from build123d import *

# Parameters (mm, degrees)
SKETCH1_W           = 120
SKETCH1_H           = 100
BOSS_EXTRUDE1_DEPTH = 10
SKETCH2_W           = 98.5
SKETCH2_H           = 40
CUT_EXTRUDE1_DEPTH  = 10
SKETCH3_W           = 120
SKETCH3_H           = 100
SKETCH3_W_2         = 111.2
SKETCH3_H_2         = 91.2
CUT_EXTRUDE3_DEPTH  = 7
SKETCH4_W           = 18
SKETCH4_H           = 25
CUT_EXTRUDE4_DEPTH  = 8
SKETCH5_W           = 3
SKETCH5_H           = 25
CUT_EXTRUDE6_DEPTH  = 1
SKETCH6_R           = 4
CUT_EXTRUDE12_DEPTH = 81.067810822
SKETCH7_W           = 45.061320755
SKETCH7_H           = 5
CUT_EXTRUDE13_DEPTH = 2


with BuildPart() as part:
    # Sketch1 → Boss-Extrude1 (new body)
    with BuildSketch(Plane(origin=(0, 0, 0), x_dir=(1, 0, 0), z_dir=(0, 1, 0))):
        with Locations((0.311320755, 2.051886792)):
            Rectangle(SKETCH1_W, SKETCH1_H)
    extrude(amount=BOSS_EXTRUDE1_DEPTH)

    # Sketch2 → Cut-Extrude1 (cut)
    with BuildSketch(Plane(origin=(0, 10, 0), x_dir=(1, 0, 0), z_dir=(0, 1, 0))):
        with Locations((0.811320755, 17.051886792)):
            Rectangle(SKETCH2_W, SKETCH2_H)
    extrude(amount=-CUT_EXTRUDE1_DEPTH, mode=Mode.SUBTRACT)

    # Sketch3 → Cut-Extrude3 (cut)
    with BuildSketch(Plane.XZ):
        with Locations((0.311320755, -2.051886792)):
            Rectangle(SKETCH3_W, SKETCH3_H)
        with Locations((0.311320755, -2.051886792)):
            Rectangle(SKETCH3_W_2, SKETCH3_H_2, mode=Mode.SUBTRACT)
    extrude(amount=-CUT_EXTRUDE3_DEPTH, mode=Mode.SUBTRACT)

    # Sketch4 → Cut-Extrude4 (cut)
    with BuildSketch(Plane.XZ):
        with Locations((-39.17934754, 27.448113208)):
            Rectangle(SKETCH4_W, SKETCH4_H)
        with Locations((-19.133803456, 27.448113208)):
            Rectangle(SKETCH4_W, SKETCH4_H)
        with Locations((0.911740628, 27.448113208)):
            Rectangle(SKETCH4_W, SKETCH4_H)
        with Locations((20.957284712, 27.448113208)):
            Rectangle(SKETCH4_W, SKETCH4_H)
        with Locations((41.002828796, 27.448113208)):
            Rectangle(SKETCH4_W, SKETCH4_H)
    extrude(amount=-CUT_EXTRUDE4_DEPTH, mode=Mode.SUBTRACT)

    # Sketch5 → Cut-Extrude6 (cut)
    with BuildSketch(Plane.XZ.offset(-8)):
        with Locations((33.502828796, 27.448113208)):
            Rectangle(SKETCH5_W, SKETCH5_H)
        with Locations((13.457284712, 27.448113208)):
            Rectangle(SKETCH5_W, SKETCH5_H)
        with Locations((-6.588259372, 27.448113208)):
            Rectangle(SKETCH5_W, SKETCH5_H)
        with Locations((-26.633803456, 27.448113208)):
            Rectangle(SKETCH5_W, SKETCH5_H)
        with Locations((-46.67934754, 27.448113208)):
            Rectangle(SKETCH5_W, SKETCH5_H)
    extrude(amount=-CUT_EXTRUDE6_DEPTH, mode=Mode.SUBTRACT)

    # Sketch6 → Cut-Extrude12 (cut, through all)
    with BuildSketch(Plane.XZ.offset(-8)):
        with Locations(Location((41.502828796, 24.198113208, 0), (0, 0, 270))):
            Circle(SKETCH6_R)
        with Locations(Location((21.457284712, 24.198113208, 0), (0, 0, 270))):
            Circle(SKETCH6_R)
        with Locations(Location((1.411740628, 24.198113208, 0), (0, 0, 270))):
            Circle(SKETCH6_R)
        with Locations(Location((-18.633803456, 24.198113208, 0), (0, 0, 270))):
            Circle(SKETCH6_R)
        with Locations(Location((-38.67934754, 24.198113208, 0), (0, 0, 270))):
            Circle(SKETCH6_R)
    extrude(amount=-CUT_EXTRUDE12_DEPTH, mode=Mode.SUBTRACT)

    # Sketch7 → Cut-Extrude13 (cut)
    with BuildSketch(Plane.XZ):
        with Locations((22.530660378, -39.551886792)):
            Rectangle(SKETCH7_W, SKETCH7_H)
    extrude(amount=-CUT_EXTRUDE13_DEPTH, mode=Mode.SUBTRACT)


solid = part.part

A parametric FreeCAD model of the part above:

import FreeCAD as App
import Part
import Sketcher

V = App.Vector
Q = App.Units.Quantity

doc = App.newDocument("Part")
body = doc.addObject("PartDesign::Body", "Body")

sketch1 = body.newObject("Sketcher::SketchObject", "Sketch")
sketch1.AttachmentSupport = (doc.getObject("XZ_Plane"), [""])
sketch1.MapMode = "FlatFace"
sketch1.addGeometry([
    Part.LineSegment(V(-60, -52, 0), V(-60, 48, 0)),
    Part.LineSegment(V(-60, 48, 0), V(60, 48, 0)),
    Part.LineSegment(V(60, 48, 0), V(60, -52, 0)),
    Part.LineSegment(V(60, -52, 0), V(-60, -52, 0)),
], False)
sketch1.addConstraint([
    Sketcher.Constraint("Coincident", 0, 2, 1, 1),
    Sketcher.Constraint("Coincident", 1, 2, 2, 1),
    Sketcher.Constraint("Coincident", 2, 2, 3, 1),
    Sketcher.Constraint("Coincident", 3, 2, 0, 1),
    Sketcher.Constraint("Vertical", 0),
    Sketcher.Constraint("Horizontal", 1),
    Sketcher.Constraint("Vertical", 2),
    Sketcher.Constraint("Horizontal", 3),
    Sketcher.Constraint("DistanceX", 1, 1, 1, 2, Q("120 mm")),
    Sketcher.Constraint("DistanceY", 0, 1, 0, 2, Q("100 mm")),
    Sketcher.Constraint("DistanceX", 0, 2, -1, 1, Q("59.688679 mm")),
    Sketcher.Constraint("DistanceY", -1, 1, 0, 2, Q("47.948113 mm")),
])
pad1 = body.newObject("PartDesign::Pad", "Pad")
pad1.Profile = sketch1
pad1.Length = 10
pad1.Reversed = True

sketch2 = body.newObject("Sketcher::SketchObject", "Sketch001")
sketch2.AttachmentSupport = (doc.getObject("XZ_Plane"), [""])
sketch2.MapMode = "FlatFace"
sketch2.AttachmentOffset = App.Placement(V(0, 0, -10), App.Rotation())
sketch2.addGeometry([
    Part.LineSegment(V(-48, -37, 0), V(-48, 3, 0)),
    Part.LineSegment(V(-48, 3, 0), V(50, 3, 0)),
    Part.LineSegment(V(50, 3, 0), V(50, -37, 0)),
    Part.LineSegment(V(50, -37, 0), V(-48, -37, 0)),
], False)
sketch2.addConstraint([
    Sketcher.Constraint("Coincident", 0, 2, 1, 1),
    Sketcher.Constraint("Coincident", 1, 2, 2, 1),
    Sketcher.Constraint("Coincident", 2, 2, 3, 1),
    Sketcher.Constraint("Coincident", 3, 2, 0, 1),
    Sketcher.Constraint("Vertical", 0),
    Sketcher.Constraint("Horizontal", 1),
    Sketcher.Constraint("Vertical", 2),
    Sketcher.Constraint("Horizontal", 3),
    Sketcher.Constraint("DistanceY", 0, 1, 0, 2, Q("40 mm")),
    Sketcher.Constraint("DistanceX", 1, 1, 1, 2, Q("98.5 mm")),
    Sketcher.Constraint("DistanceX", 0, 2, -1, 1, Q("48.438679 mm")),
    Sketcher.Constraint("DistanceY", -1, 1, 0, 2, Q("2.948113 mm")),
])
pocket1 = body.newObject("PartDesign::Pocket", "Pocket")
pocket1.Profile = sketch2
pocket1.Length = 10
pocket1.Reversed = True

sketch3 = body.newObject("Sketcher::SketchObject", "Sketch002")
sketch3.AttachmentSupport = (doc.getObject("XZ_Plane"), [""])
sketch3.MapMode = "FlatFace"
sketch3.addGeometry([
    Part.LineSegment(V(-60, 48, 0), V(-60, -52, 0)),
    Part.LineSegment(V(-60, -52, 0), V(60, -52, 0)),
    Part.LineSegment(V(60, -52, 0), V(60, 48, 0)),
    Part.LineSegment(V(60, 48, 0), V(-60, 48, 0)),
    Part.LineSegment(V(56, -48, 0), V(-55, -48, 0)),
    Part.LineSegment(V(-55, -48, 0), V(-55, 44, 0)),
    Part.LineSegment(V(-55, 44, 0), V(56, 44, 0)),
    Part.LineSegment(V(56, 44, 0), V(56, -48, 0)),
], False)
sketch3.addConstraint([
    Sketcher.Constraint("Coincident", 0, 2, 1, 1),
    Sketcher.Constraint("Coincident", 1, 2, 2, 1),
    Sketcher.Constraint("Coincident", 2, 2, 3, 1),
    Sketcher.Constraint("Coincident", 3, 2, 0, 1),
    Sketcher.Constraint("Coincident", 4, 2, 5, 1),
    Sketcher.Constraint("Coincident", 5, 2, 6, 1),
    Sketcher.Constraint("Coincident", 6, 2, 7, 1),
    Sketcher.Constraint("Coincident", 7, 2, 4, 1),
    Sketcher.Constraint("Vertical", 0),
    Sketcher.Constraint("Horizontal", 1),
    Sketcher.Constraint("Vertical", 2),
    Sketcher.Constraint("Horizontal", 3),
    Sketcher.Constraint("Horizontal", 4),
    Sketcher.Constraint("Vertical", 5),
    Sketcher.Constraint("Horizontal", 6),
    Sketcher.Constraint("Vertical", 7),
    Sketcher.Constraint("DistanceX", 1, 1, 1, 2, Q("120 mm")),
    Sketcher.Constraint("DistanceY", 0, 2, 0, 1, Q("100 mm")),
    Sketcher.Constraint("DistanceX", 4, 2, 4, 1, Q("111.2 mm")),
    Sketcher.Constraint("DistanceY", 5, 1, 5, 2, Q("91.2 mm")),
    Sketcher.Constraint("DistanceX", 0, 2, 4, 2, Q("4.4 mm")),
    Sketcher.Constraint("DistanceY", 0, 2, 4, 2, Q("4.4 mm")),
    Sketcher.Constraint("DistanceX", 0, 2, -1, 1, Q("59.688679 mm")),
    Sketcher.Constraint("DistanceY", 0, 2, -1, 1, Q("52.051887 mm")),
])
pocket2 = body.newObject("PartDesign::Pocket", "Pocket001")
pocket2.Profile = sketch3
pocket2.Length = 7

sketch4 = body.newObject("Sketcher::SketchObject", "Sketch003")
sketch4.AttachmentSupport = (doc.getObject("XZ_Plane"), [""])
sketch4.MapMode = "FlatFace"
sketch4.addGeometry([
    Part.LineSegment(V(-48, 40, 0), V(-48, 15, 0)),
    Part.LineSegment(V(-48, 15, 0), V(-30, 15, 0)),
    Part.LineSegment(V(-30, 15, 0), V(-30, 40, 0)),
    Part.LineSegment(V(-30, 40, 0), V(-48, 40, 0)),
    Part.LineSegment(V(-28, 40, 0), V(-28, 15, 0)),
    Part.LineSegment(V(-28, 15, 0), V(-10, 15, 0)),
    Part.LineSegment(V(-10, 15, 0), V(-10, 40, 0)),
    Part.LineSegment(V(-10, 40, 0), V(-28, 40, 0)),
    Part.LineSegment(V(-8, 40, 0), V(-8, 15, 0)),
    Part.LineSegment(V(-8, 15, 0), V(10, 15, 0)),
    Part.LineSegment(V(10, 15, 0), V(10, 40, 0)),
    Part.LineSegment(V(10, 40, 0), V(-8, 40, 0)),
    Part.LineSegment(V(12, 40, 0), V(12, 15, 0)),
    Part.LineSegment(V(12, 15, 0), V(30, 15, 0)),
    Part.LineSegment(V(30, 15, 0), V(30, 40, 0)),
    Part.LineSegment(V(30, 40, 0), V(12, 40, 0)),
    Part.LineSegment(V(32, 40, 0), V(32, 15, 0)),
    Part.LineSegment(V(32, 15, 0), V(50, 15, 0)),
    Part.LineSegment(V(50, 15, 0), V(50, 40, 0)),
    Part.LineSegment(V(50, 40, 0), V(32, 40, 0)),
], False)
sketch4.addConstraint([
    Sketcher.Constraint("Coincident", 0, 2, 1, 1),
    Sketcher.Constraint("Coincident", 1, 2, 2, 1),
    Sketcher.Constraint("Coincident", 2, 2, 3, 1),
    Sketcher.Constraint("Coincident", 3, 2, 0, 1),
    Sketcher.Constraint("Coincident", 4, 2, 5, 1),
    Sketcher.Constraint("Coincident", 5, 2, 6, 1),
    Sketcher.Constraint("Coincident", 6, 2, 7, 1),
    Sketcher.Constraint("Coincident", 7, 2, 4, 1),
    Sketcher.Constraint("Coincident", 8, 2, 9, 1),
    Sketcher.Constraint("Coincident", 9, 2, 10, 1),
    Sketcher.Constraint("Coincident", 10, 2, 11, 1),
    Sketcher.Constraint("Coincident", 11, 2, 8, 1),
    Sketcher.Constraint("Coincident", 12, 2, 13, 1),
    Sketcher.Constraint("Coincident", 13, 2, 14, 1),
    Sketcher.Constraint("Coincident", 14, 2, 15, 1),
    Sketcher.Constraint("Coincident", 15, 2, 12, 1),
    Sketcher.Constraint("Coincident", 16, 2, 17, 1),
    Sketcher.Constraint("Coincident", 17, 2, 18, 1),
    Sketcher.Constraint("Coincident", 18, 2, 19, 1),
    Sketcher.Constraint("Coincident", 19, 2, 16, 1),
    Sketcher.Constraint("Vertical", 0),
    Sketcher.Constraint("Horizontal", 1),
    Sketcher.Constraint("Vertical", 2),
    Sketcher.Constraint("Horizontal", 3),
    Sketcher.Constraint("Vertical", 4),
    Sketcher.Constraint("Horizontal", 5),
    Sketcher.Constraint("Vertical", 6),
    Sketcher.Constraint("Horizontal", 7),
    Sketcher.Constraint("Vertical", 8),
    Sketcher.Constraint("Horizontal", 9),
    Sketcher.Constraint("Vertical", 10),
    Sketcher.Constraint("Horizontal", 11),
    Sketcher.Constraint("Vertical", 12),
    Sketcher.Constraint("Horizontal", 13),
    Sketcher.Constraint("Vertical", 14),
    Sketcher.Constraint("Horizontal", 15),
    Sketcher.Constraint("Vertical", 16),
    Sketcher.Constraint("Horizontal", 17),
    Sketcher.Constraint("Vertical", 18),
    Sketcher.Constraint("Horizontal", 19),
    Sketcher.Constraint("Horizontal", 1, 2, 4, 2),
    Sketcher.Constraint("Horizontal", 3, 2, 6, 2),
    Sketcher.Constraint("Horizontal", 5, 2, 8, 2),
    Sketcher.Constraint("Horizontal", 7, 2, 10, 2),
    Sketcher.Constraint("Horizontal", 9, 2, 12, 2),
    Sketcher.Constraint("Horizontal", 11, 2, 14, 2),
    Sketcher.Constraint("Horizontal", 13, 2, 16, 2),
    Sketcher.Constraint("Horizontal", 15, 2, 18, 2),
    Sketcher.Constraint("Equal", 3, 5),
    Sketcher.Constraint("Equal", 7, 9),
    Sketcher.Constraint("Equal", 11, 13),
    Sketcher.Constraint("Equal", 15, 17),
    Sketcher.Constraint("DistanceX", 1, 1, 1, 2, Q("18 mm")),
    Sketcher.Constraint("DistanceY", 0, 2, 0, 1, Q("25 mm")),
    Sketcher.Constraint("DistanceX", 8, 2, -1, 1, Q("8.088259 mm")),
    Sketcher.Constraint("DistanceX", -1, 1, 16, 2, Q("32.002829 mm")),
    Sketcher.Constraint("DistanceX", 1, 2, 8, 2, Q("22.091088 mm")),
    Sketcher.Constraint("DistanceX", 5, 2, 12, 2, Q("22.091088 mm")),
    Sketcher.Constraint("DistanceY", -1, 1, 0, 2, Q("14.948113 mm")),
    Sketcher.Constraint("DistanceX", 4, 2, -1, 1, Q("28.133803 mm")),
])
pocket3 = body.newObject("PartDesign::Pocket", "Pocket002")
pocket3.Profile = sketch4
pocket3.Length = 8

sketch5 = body.newObject("Sketcher::SketchObject", "Sketch004")
sketch5.AttachmentSupport = (doc.getObject("XZ_Plane"), [""])
sketch5.MapMode = "FlatFace"
sketch5.AttachmentOffset = App.Placement(V(0, 0, -8), App.Rotation())
sketch5.addGeometry([
    Part.LineSegment(V(32, 39.9, 0), V(32, 14.9, 0)),
    Part.LineSegment(V(32, 14.9, 0), V(35, 14.9, 0)),
    Part.LineSegment(V(35, 14.9, 0), V(35, 39.9, 0)),
    Part.LineSegment(V(35, 39.9, 0), V(32, 39.9, 0)),
    Part.LineSegment(V(12, 39.9, 0), V(12, 14.9, 0)),
    Part.LineSegment(V(12, 14.9, 0), V(15, 14.9, 0)),
    Part.LineSegment(V(15, 14.9, 0), V(15, 39.9, 0)),
    Part.LineSegment(V(15, 39.9, 0), V(12, 39.9, 0)),
    Part.LineSegment(V(-8.1, 39.9, 0), V(-8.1, 14.9, 0)),
    Part.LineSegment(V(-8.1, 14.9, 0), V(-5.1, 14.9, 0)),
    Part.LineSegment(V(-5.1, 14.9, 0), V(-5.1, 39.9, 0)),
    Part.LineSegment(V(-5.1, 39.9, 0), V(-8.1, 39.9, 0)),
    Part.LineSegment(V(-28.1, 39.9, 0), V(-28.1, 14.9, 0)),
    Part.LineSegment(V(-28.1, 14.9, 0), V(-25.1, 14.9, 0)),
    Part.LineSegment(V(-25.1, 14.9, 0), V(-25.1, 39.9, 0)),
    Part.LineSegment(V(-25.1, 39.9, 0), V(-28.1, 39.9, 0)),
    Part.LineSegment(V(-48.2, 39.9, 0), V(-48.2, 14.9, 0)),
    Part.LineSegment(V(-48.2, 14.9, 0), V(-45.2, 14.9, 0)),
    Part.LineSegment(V(-45.2, 14.9, 0), V(-45.2, 39.9, 0)),
    Part.LineSegment(V(-45.2, 39.9, 0), V(-48.2, 39.9, 0)),
], False)
sketch5.addConstraint([
    Sketcher.Constraint("Coincident", 0, 2, 1, 1),
    Sketcher.Constraint("Coincident", 1, 2, 2, 1),
    Sketcher.Constraint("Coincident", 2, 2, 3, 1),
    Sketcher.Constraint("Coincident", 3, 2, 0, 1),
    Sketcher.Constraint("Coincident", 4, 2, 5, 1),
    Sketcher.Constraint("Coincident", 5, 2, 6, 1),
    Sketcher.Constraint("Coincident", 6, 2, 7, 1),
    Sketcher.Constraint("Coincident", 7, 2, 4, 1),
    Sketcher.Constraint("Coincident", 8, 2, 9, 1),
    Sketcher.Constraint("Coincident", 9, 2, 10, 1),
    Sketcher.Constraint("Coincident", 10, 2, 11, 1),
    Sketcher.Constraint("Coincident", 11, 2, 8, 1),
    Sketcher.Constraint("Coincident", 12, 2, 13, 1),
    Sketcher.Constraint("Coincident", 13, 2, 14, 1),
    Sketcher.Constraint("Coincident", 14, 2, 15, 1),
    Sketcher.Constraint("Coincident", 15, 2, 12, 1),
    Sketcher.Constraint("Coincident", 16, 2, 17, 1),
    Sketcher.Constraint("Coincident", 17, 2, 18, 1),
    Sketcher.Constraint("Coincident", 18, 2, 19, 1),
    Sketcher.Constraint("Coincident", 19, 2, 16, 1),
    Sketcher.Constraint("Vertical", 0),
    Sketcher.Constraint("Horizontal", 1),
    Sketcher.Constraint("Vertical", 2),
    Sketcher.Constraint("Horizontal", 3),
    Sketcher.Constraint("Vertical", 4),
    Sketcher.Constraint("Horizontal", 5),
    Sketcher.Constraint("Vertical", 6),
    Sketcher.Constraint("Horizontal", 7),
    Sketcher.Constraint("Vertical", 8),
    Sketcher.Constraint("Horizontal", 9),
    Sketcher.Constraint("Vertical", 10),
    Sketcher.Constraint("Horizontal", 11),
    Sketcher.Constraint("Vertical", 12),
    Sketcher.Constraint("Horizontal", 13),
    Sketcher.Constraint("Vertical", 14),
    Sketcher.Constraint("Horizontal", 15),
    Sketcher.Constraint("Vertical", 16),
    Sketcher.Constraint("Horizontal", 17),
    Sketcher.Constraint("Vertical", 18),
    Sketcher.Constraint("Horizontal", 19),
    Sketcher.Constraint("Horizontal", 1, 2, 4, 2),
    Sketcher.Constraint("Horizontal", 3, 2, 6, 2),
    Sketcher.Constraint("Horizontal", 5, 2, 8, 2),
    Sketcher.Constraint("Horizontal", 7, 2, 10, 2),
    Sketcher.Constraint("Horizontal", 9, 2, 12, 2),
    Sketcher.Constraint("Horizontal", 11, 2, 14, 2),
    Sketcher.Constraint("Horizontal", 13, 2, 16, 2),
    Sketcher.Constraint("Horizontal", 15, 2, 18, 2),
    Sketcher.Constraint("Equal", 3, 5),
    Sketcher.Constraint("Equal", 7, 9),
    Sketcher.Constraint("Equal", 11, 13),
    Sketcher.Constraint("Equal", 15, 17),
    Sketcher.Constraint("DistanceX", 1, 1, 1, 2, Q("3 mm")),
    Sketcher.Constraint("DistanceY", 0, 2, 0, 1, Q("25 mm")),
    Sketcher.Constraint("DistanceX", -1, 1, 0, 2, Q("32.002829 mm")),
    Sketcher.Constraint("DistanceX", 8, 2, -1, 1, Q("8.088259 mm")),
    Sketcher.Constraint("DistanceX", 12, 2, 4, 2, Q("40.091088 mm")),
    Sketcher.Constraint("DistanceX", 16, 2, 8, 2, Q("40.091088 mm")),
    Sketcher.Constraint("DistanceY", -1, 1, 0, 2, Q("14.948113 mm")),
    Sketcher.Constraint("DistanceX", -1, 1, 4, 2, Q("11.957285 mm")),
])
pocket4 = body.newObject("PartDesign::Pocket", "Pocket003")
pocket4.Profile = sketch5
pocket4.Length = 1

sketch6 = body.newObject("Sketcher::SketchObject", "Sketch005")
sketch6.AttachmentSupport = (doc.getObject("XZ_Plane"), [""])
sketch6.MapMode = "FlatFace"
sketch6.AttachmentOffset = App.Placement(V(0, 0, -8), App.Rotation())
sketch6.addGeometry([
    Part.Circle(V(41.5, 24.2, 0), V(0, 0, 1), 4),
    Part.Circle(V(21.5, 24.2, 0), V(0, 0, 1), 4),
    Part.Circle(V(1.4, 24.2, 0), V(0, 0, 1), 4),
    Part.Circle(V(-18.6, 24.2, 0), V(0, 0, 1), 4),
    Part.Circle(V(-38.7, 24.2, 0), V(0, 0, 1), 4),
], False)
sketch6.addConstraint([
    Sketcher.Constraint("Equal", 0, 1),
    Sketcher.Constraint("Equal", 1, 2),
    Sketcher.Constraint("Equal", 2, 3),
    Sketcher.Constraint("Equal", 3, 4),
    Sketcher.Constraint("Horizontal", 0, 3, 1, 3),
    Sketcher.Constraint("Horizontal", 1, 3, 2, 3),
    Sketcher.Constraint("Horizontal", 2, 3, 3, 3),
    Sketcher.Constraint("Horizontal", 3, 3, 4, 3),
    Sketcher.Constraint("Diameter", 0, Q("8 mm")),
    Sketcher.Constraint("DistanceX", -1, 1, 0, 3, Q("41.502829 mm")),
    Sketcher.Constraint("DistanceX", -1, 1, 2, 3, Q("1.411741 mm")),
    Sketcher.Constraint("DistanceX", 3, 3, 1, 3, Q("40.091088 mm")),
    Sketcher.Constraint("DistanceX", 4, 3, 2, 3, Q("40.091088 mm")),
    Sketcher.Constraint("DistanceY", -1, 1, 0, 3, Q("24.198113 mm")),
    Sketcher.Constraint("DistanceX", -1, 1, 1, 3, Q("21.457285 mm")),
])
pocket5 = body.newObject("PartDesign::Pocket", "Pocket004")
pocket5.Profile = sketch6
pocket5.Type = "ThroughAll"

sketch7 = body.newObject("Sketcher::SketchObject", "Sketch006")
sketch7.AttachmentSupport = (doc.getObject("XZ_Plane"), [""])
sketch7.MapMode = "FlatFace"
sketch7.addGeometry([
    Part.LineSegment(V(0, -37, 0), V(0, -42, 0)),
    Part.LineSegment(V(0, -42, 0), V(45, -42, 0)),
    Part.LineSegment(V(45, -42, 0), V(45, -37, 0)),
    Part.LineSegment(V(45, -37, 0), V(0, -37, 0)),
], False)
sketch7.addConstraint([
    Sketcher.Constraint("Coincident", 0, 2, 1, 1),
    Sketcher.Constraint("Coincident", 1, 2, 2, 1),
    Sketcher.Constraint("Coincident", 2, 2, 3, 1),
    Sketcher.Constraint("Coincident", 3, 2, 0, 1),
    Sketcher.Constraint("Vertical", 0),
    Sketcher.Constraint("Horizontal", 1),
    Sketcher.Constraint("Vertical", 2),
    Sketcher.Constraint("Horizontal", 3),
    Sketcher.Constraint("PointOnObject", 0, 2, -2),
    Sketcher.Constraint("DistanceY", 0, 2, 0, 1, Q("5 mm")),
    Sketcher.Constraint("DistanceX", 1, 1, 1, 2, Q("45.061321 mm")),
    Sketcher.Constraint("DistanceY", 0, 2, -1, 1, Q("42.051887 mm")),
])
pocket6 = body.newObject("PartDesign::Pocket", "Pocket005")
pocket6.Profile = sketch7
pocket6.Length = 2

doc.recompute()
